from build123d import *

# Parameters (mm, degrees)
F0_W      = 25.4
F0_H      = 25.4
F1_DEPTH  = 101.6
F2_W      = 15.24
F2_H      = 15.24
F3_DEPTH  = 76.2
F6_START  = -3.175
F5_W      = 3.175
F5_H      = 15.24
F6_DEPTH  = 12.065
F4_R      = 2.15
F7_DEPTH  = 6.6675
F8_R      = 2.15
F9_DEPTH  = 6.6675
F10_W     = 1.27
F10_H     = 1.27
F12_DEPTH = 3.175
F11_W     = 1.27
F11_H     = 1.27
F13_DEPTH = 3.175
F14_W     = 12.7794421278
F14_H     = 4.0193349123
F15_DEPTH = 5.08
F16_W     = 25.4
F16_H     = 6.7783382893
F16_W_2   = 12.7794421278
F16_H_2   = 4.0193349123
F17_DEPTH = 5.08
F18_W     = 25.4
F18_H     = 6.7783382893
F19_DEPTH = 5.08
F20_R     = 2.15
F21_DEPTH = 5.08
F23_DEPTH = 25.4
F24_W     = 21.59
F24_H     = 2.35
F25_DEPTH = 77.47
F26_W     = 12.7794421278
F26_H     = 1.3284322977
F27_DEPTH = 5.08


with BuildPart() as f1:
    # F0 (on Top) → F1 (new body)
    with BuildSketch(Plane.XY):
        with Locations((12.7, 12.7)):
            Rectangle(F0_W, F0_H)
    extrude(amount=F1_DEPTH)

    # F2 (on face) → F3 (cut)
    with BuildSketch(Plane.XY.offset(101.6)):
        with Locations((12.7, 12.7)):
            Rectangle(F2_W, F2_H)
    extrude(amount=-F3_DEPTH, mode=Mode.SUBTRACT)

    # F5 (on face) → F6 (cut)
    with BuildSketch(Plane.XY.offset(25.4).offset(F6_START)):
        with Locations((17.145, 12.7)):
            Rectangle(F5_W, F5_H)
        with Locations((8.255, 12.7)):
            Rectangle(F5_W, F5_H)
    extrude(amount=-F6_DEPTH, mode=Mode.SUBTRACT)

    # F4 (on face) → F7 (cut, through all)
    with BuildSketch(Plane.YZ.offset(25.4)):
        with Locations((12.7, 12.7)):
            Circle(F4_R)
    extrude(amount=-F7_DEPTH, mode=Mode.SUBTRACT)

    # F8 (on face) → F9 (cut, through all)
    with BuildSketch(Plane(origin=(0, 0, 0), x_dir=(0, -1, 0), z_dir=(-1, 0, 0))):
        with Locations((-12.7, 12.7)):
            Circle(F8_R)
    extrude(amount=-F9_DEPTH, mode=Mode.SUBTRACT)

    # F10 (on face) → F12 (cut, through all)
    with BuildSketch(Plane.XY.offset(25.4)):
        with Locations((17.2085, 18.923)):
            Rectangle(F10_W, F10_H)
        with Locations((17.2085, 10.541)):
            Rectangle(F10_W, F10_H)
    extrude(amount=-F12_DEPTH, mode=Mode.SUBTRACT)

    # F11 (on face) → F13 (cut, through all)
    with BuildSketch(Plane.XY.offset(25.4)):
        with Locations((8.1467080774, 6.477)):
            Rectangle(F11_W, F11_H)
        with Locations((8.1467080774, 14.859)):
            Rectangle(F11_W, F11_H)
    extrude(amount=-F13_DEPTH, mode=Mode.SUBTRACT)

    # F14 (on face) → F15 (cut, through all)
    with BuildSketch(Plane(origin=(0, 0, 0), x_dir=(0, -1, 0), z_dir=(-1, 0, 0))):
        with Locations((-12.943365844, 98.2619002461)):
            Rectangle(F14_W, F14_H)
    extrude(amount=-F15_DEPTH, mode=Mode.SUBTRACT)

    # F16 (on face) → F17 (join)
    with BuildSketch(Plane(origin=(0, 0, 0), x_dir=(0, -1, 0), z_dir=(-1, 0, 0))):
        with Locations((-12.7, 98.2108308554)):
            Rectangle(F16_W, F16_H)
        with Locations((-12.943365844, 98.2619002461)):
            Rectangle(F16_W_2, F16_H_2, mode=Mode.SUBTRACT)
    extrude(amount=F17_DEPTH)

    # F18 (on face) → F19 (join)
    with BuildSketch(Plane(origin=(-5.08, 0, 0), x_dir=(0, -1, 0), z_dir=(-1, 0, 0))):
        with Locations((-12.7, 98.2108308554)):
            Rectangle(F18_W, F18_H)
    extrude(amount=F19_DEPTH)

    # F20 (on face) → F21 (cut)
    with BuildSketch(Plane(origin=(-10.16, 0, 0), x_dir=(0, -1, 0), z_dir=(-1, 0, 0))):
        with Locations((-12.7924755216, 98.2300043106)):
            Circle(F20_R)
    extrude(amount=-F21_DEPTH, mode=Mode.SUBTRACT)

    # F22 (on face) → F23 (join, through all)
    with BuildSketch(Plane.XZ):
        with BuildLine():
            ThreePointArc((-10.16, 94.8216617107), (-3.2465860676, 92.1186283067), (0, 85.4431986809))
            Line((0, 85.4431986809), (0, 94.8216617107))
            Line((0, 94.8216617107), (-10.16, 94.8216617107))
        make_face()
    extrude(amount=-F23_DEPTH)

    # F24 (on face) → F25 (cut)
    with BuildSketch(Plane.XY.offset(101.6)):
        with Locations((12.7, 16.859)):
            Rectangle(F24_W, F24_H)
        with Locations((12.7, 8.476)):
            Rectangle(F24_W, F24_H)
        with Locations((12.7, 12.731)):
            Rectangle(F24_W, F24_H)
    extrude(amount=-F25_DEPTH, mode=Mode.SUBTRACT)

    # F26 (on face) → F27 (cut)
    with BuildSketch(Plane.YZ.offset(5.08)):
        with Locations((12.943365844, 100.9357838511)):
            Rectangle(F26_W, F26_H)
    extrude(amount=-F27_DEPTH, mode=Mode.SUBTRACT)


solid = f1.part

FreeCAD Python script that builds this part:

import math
import FreeCAD as App
import Part
import Sketcher
Q = App.Units.Quantity

doc = App.newDocument("Part")
params = doc.addObject("Spreadsheet::Sheet", "Params")
for row, (alias, value) in enumerate([
    ("sketch1_width", "1 in"),
    ("pad1_length", "4 in"),
    ("sketch2_width", "0.6 in"),
    ("pocket1_length", "3 in"),
    ("sketch3_height", "0.6 in"),
    ("sketch3_width", "0.125 in"),
    ("pocket2_length", "0.475 in"),
    ("pocket3_length", "0.2625 in"),
    ("pocket4_length", "0.2625 in"),
    ("sketch6_width", "0.05 in"),
    ("pocket5_length", "0.125 in"),
    ("sketch7_width", "0.05 in"),
    ("pocket6_length", "0.125 in"),
    ("pocket7_length", "0.2 in"),
    ("sketch9_width", "1 in"),
    ("pad2_length", "0.2 in"),
    ("sketch10_width", "1 in"),
    ("pad3_length", "0.2 in"),
    ("pocket8_length", "0.2 in"),
    ("sketch12_width", "0.4 in"),
    ("pad4_length", "1 in"),
    ("sketch13_width", "0.85 in"),
    ("pocket9_length", "3.05 in"),
    ("pocket10_length", "0.2 in"),
], start=1):
    params.set(f"A{row}", alias)
    params.set(f"B{row}", "=" + value)
    params.setAlias(f"B{row}", alias)

body = doc.addObject("PartDesign::Body", "Body")

# Sketch on XY plane
sketch1 = body.newObject("Sketcher::SketchObject", "Sketch")
sketch1.AttachmentSupport = (doc.getObject("XY_Plane"), [""])
sketch1.MapMode = "FlatFace"
sketch1.addGeometry(Part.LineSegment(App.Vector(0, 25, 0), App.Vector(0, 0, 0)), False)
sketch1.addGeometry(Part.LineSegment(App.Vector(0, 0, 0), App.Vector(25, 0, 0)), False)
sketch1.addGeometry(Part.LineSegment(App.Vector(25, 0, 0), App.Vector(25, 25, 0)), False)
sketch1.addGeometry(Part.LineSegment(App.Vector(25, 25, 0), App.Vector(0, 25, 0)), False)
sketch1.addConstraint(Sketcher.Constraint("Coincident", 0, 2, 1, 1))
sketch1.addConstraint(Sketcher.Constraint("Coincident", 1, 2, 2, 1))
sketch1.addConstraint(Sketcher.Constraint("Coincident", 2, 2, 3, 1))
sketch1.addConstraint(Sketcher.Constraint("Coincident", 3, 2, 0, 1))
sketch1.addConstraint(Sketcher.Constraint("Vertical", 0))
sketch1.addConstraint(Sketcher.Constraint("Horizontal", 1))
sketch1.addConstraint(Sketcher.Constraint("Vertical", 2))
sketch1.addConstraint(Sketcher.Constraint("Horizontal", 3))
sketch1.addConstraint(Sketcher.Constraint("Coincident", 0, 2, -1, 1))
sketch1.addConstraint(Sketcher.Constraint("Equal", 3, 0))
sketch1.addConstraint(Sketcher.Constraint("DistanceX", 1, 1, 1, 2, Q("1 in")))
sketch1.setExpression("Constraints[10]", "Params.sketch1_width")
pad1 = body.newObject("PartDesign::Pad", "Pad")
pad1.Profile = sketch1
pad1.setExpression("Length", "Params.pad1_length")

# Sketch on XY plane
sketch2 = body.newObject("Sketcher::SketchObject", "Sketch001")
sketch2.AttachmentSupport = (doc.getObject("XY_Plane"), [""])
sketch2.MapMode = "FlatFace"
sketch2.AttachmentOffset = App.Placement(App.Vector(0, 0, 4 * 25.4), App.Rotation())
sketch2.addGeometry(Part.LineSegment(App.Vector(5, 20, 0), App.Vector(5, 5, 0)), False)
sketch2.addGeometry(Part.LineSegment(App.Vector(5, 5, 0), App.Vector(20, 5, 0)), False)
sketch2.addGeometry(Part.LineSegment(App.Vector(20, 5, 0), App.Vector(20, 20, 0)), False)
sketch2.addGeometry(Part.LineSegment(App.Vector(20, 20, 0), App.Vector(5, 20, 0)), False)
sketch2.addConstraint(Sketcher.Constraint("Coincident", 0, 2, 1, 1))
sketch2.addConstraint(Sketcher.Constraint("Coincident", 1, 2, 2, 1))
sketch2.addConstraint(Sketcher.Constraint("Coincident", 2, 2, 3, 1))
sketch2.addConstraint(Sketcher.Constraint("Coincident", 3, 2, 0, 1))
sketch2.addConstraint(Sketcher.Constraint("Vertical", 0))
sketch2.addConstraint(Sketcher.Constraint("Horizontal", 1))
sketch2.addConstraint(Sketcher.Constraint("Vertical", 2))
sketch2.addConstraint(Sketcher.Constraint("Horizontal", 3))
sketch2.addConstraint(Sketcher.Constraint("Equal", 3, 0))
sketch2.addConstraint(Sketcher.Constraint("DistanceX", 1, 1, 1, 2, Q("0.6 in")))
sketch2.addConstraint(Sketcher.Constraint("DistanceX", -1, 1, 0, 2, Q("0.2 in")))
sketch2.addConstraint(Sketcher.Constraint("DistanceY", -1, 1, 0, 2, Q("0.2 in")))
sketch2.setExpression("Constraints[9]", "Params.sketch2_width")
pocket1 = body.newObject("PartDesign::Pocket", "Pocket")
pocket1.Profile = sketch2
pocket1.setExpression("Length", "Params.pocket1_length")

# Sketch on XY plane
sketch3 = body.newObject("Sketcher::SketchObject", "Sketch002")
sketch3.AttachmentSupport = (doc.getObject("XY_Plane"), [""])
sketch3.MapMode = "FlatFace"
sketch3.AttachmentOffset = App.Placement(App.Vector(0, 0, 0.875 * 25.4), App.Rotation())
sketch3.addGeometry(Part.LineSegment(App.Vector(15.6, 20.3, 0), App.Vector(15.6, 5.1, 0)), False)
sketch3.addGeometry(Part.LineSegment(App.Vector(15.6, 5.1, 0), App.Vector(18.7, 5.1, 0)), False)
sketch3.addGeometry(Part.LineSegment(App.Vector(18.7, 5.1, 0), App.Vector(18.7, 20.3, 0)), False)
sketch3.addGeometry(Part.LineSegment(App.Vector(18.7, 20.3, 0), App.Vector(15.6, 20.3, 0)), False)
sketch3.addGeometry(Part.LineSegment(App.Vector(6.7, 20.3, 0), App.Vector(6.7, 5.1, 0)), False)
sketch3.addGeometry(Part.LineSegment(App.Vector(6.7, 5.1, 0), App.Vector(9.8, 5.1, 0)), False)
sketch3.addGeometry(Part.LineSegment(App.Vector(9.8, 5.1, 0), App.Vector(9.8, 20.3, 0)), False)
sketch3.addGeometry(Part.LineSegment(App.Vector(9.8, 20.3, 0), App.Vector(6.7, 20.3, 0)), False)
sketch3.addConstraint(Sketcher.Constraint("Coincident", 0, 2, 1, 1))
sketch3.addConstraint(Sketcher.Constraint("Coincident", 1, 2, 2, 1))
sketch3.addConstraint(Sketcher.Constraint("Coincident", 2, 2, 3, 1))
sketch3.addConstraint(Sketcher.Constraint("Coincident", 3, 2, 0, 1))
sketch3.addConstraint(Sketcher.Constraint("Coincident", 4, 2, 5, 1))
sketch3.addConstraint(Sketcher.Constraint("Coincident", 5, 2, 6, 1))
sketch3.addConstraint(Sketcher.Constraint("Coincident", 6, 2, 7, 1))
sketch3.addConstraint(Sketcher.Constraint("Coincident", 7, 2, 4, 1))
sketch3.addConstraint(Sketcher.Constraint("Vertical", 0))
sketch3.addConstraint(Sketcher.Constraint("Horizontal", 1))
sketch3.addConstraint(Sketcher.Constraint("Vertical", 2))
sketch3.addConstraint(Sketcher.Constraint("Horizontal", 3))
sketch3.addConstraint(Sketcher.Constraint("Vertical", 4))
sketch3.addConstraint(Sketcher.Constraint("Horizontal", 5))
sketch3.addConstraint(Sketcher.Constraint("Vertical", 6))
sketch3.addConstraint(Sketcher.Constraint("Horizontal", 7))
sketch3.addConstraint(Sketcher.Constraint("Horizontal", 1, 2, 4, 2))
sketch3.addConstraint(Sketcher.Constraint("Horizontal", 3, 2, 6, 2))
sketch3.addConstraint(Sketcher.Constraint("Equal", 3, 5))
sketch3.addConstraint(Sketcher.Constraint("DistanceY", 0, 2, 0, 1, Q("0.6 in")))
sketch3.addConstraint(Sketcher.Constraint("DistanceY", -1, 1, 0, 2, Q("0.2 in")))
sketch3.addConstraint(Sketcher.Constraint("DistanceX", 1, 1, 1, 2, Q("0.125 in")))
sketch3.addConstraint(Sketcher.Constraint("DistanceX", 4, 2, 0, 2, Q("0.35 in")))
sketch3.addConstraint(Sketcher.Constraint("DistanceX", -1, 1, 0, 2, Q("0.6125 in")))
sketch3.setExpression("Constraints[19]", "Params.sketch3_height")
sketch3.setExpression("Constraints[21]", "Params.sketch3_width")
pocket2 = body.newObject("PartDesign::Pocket", "Pocket001")
pocket2.Profile = sketch3
pocket2.setExpression("Length", "Params.pocket2_length")

# Sketch on YZ plane
sketch4 = body.newObject("Sketcher::SketchObject", "Sketch003")
sketch4.AttachmentSupport = (doc.getObject("YZ_Plane"), [""])
sketch4.MapMode = "FlatFace"
sketch4.AttachmentOffset = App.Placement(App.Vector(0, 0, 1 * 25.4), App.Rotation())
sketch4.addGeometry(Part.Circle(App.Vector(12.7, 12.7, 0), App.Vector(0, 0, 1), 2.1), False)
sketch4.addConstraint(Sketcher.Constraint("DistanceX", -1, 1, 0, 3, Q("0.5 in")))
sketch4.addConstraint(Sketcher.Constraint("DistanceY", -1, 1, 0, 3, Q("0.5 in")))
sketch4.addConstraint(Sketcher.Constraint("Diameter", 0, Q("4.3 mm")))
pocket3 = body.newObject("PartDesign::Pocket", "Pocket002")
pocket3.Profile = sketch4
pocket3.setExpression("Length", "Params.pocket3_length")

# Sketch on YZ plane
sketch5 = body.newObject("Sketcher::SketchObject", "Sketch004")
sketch5.AttachmentSupport = (doc.getObject("YZ_Plane"), [""])
sketch5.MapMode = "FlatFace"
sketch5.addGeometry(Part.Circle(App.Vector(12.7, 12.7, 0), App.Vector(0, 0, 1), 2.1), False)
sketch5.addConstraint(Sketcher.Constraint("DistanceX", -1, 1, 0, 3, Q("0.5 in")))
sketch5.addConstraint(Sketcher.Constraint("DistanceY", -1, 1, 0, 3, Q("0.5 in")))
sketch5.addConstraint(Sketcher.Constraint("Diameter", 0, Q("4.3 mm")))
pocket4 = body.newObject("PartDesign::Pocket", "Pocket003")
pocket4.Profile = sketch5
pocket4.setExpression("Length", "Params.pocket4_length")
pocket4.Reversed = True

# Sketch on XY plane
sketch6 = body.newObject("Sketcher::SketchObject", "Sketch005")
sketch6.AttachmentSupport = (doc.getObject("XY_Plane"), [""])
sketch6.MapMode = "FlatFace"
sketch6.AttachmentOffset = App.Placement(App.Vector(0, 0, 1 * 25.4), App.Rotation())
sketch6.addGeometry(Part.LineSegment(App.Vector(16.6, 19.6, 0), App.Vector(16.6, 18.3, 0)), False)
sketch6.addGeometry(Part.LineSegment(App.Vector(16.6, 18.3, 0), App.Vector(17.8, 18.3, 0)), False)
sketch6.addGeometry(Part.LineSegment(App.Vector(17.8, 18.3, 0), App.Vector(17.8, 19.6, 0)), False)
sketch6.addGeometry(Part.LineSegment(App.Vector(17.8, 19.6, 0), App.Vector(16.6, 19.6, 0)), False)
sketch6.addGeometry(Part.LineSegment(App.Vector(16.6, 11.2, 0), App.Vector(16.6, 9.9, 0)), False)
sketch6.addGeometry(Part.LineSegment(App.Vector(16.6, 9.9, 0), App.Vector(17.8, 9.9, 0)), False)
sketch6.addGeometry(Part.LineSegment(App.Vector(17.8, 9.9, 0), App.Vector(17.8, 11.2, 0)), False)
sketch6.addGeometry(Part.LineSegment(App.Vector(17.8, 11.2, 0), App.Vector(16.6, 11.2, 0)), False)
sketch6.addConstraint(Sketcher.Constraint("Coincident", 0, 2, 1, 1))
sketch6.addConstraint(Sketcher.Constraint("Coincident", 1, 2, 2, 1))
sketch6.addConstraint(Sketcher.Constraint("Coincident", 2, 2, 3, 1))
sketch6.addConstraint(Sketcher.Constraint("Coincident", 3, 2, 0, 1))
sketch6.addConstraint(Sketcher.Constraint("Coincident", 4, 2, 5, 1))
sketch6.addConstraint(Sketcher.Constraint("Coincident", 5, 2, 6, 1))
sketch6.addConstraint(Sketcher.Constraint("Coincident", 6, 2, 7, 1))
sketch6.addConstraint(Sketcher.Constraint("Coincident", 7, 2, 4, 1))
sketch6.addConstraint(Sketcher.Constraint("Vertical", 0))
sketch6.addConstraint(Sketcher.Constraint("Horizontal", 1))
sketch6.addConstraint(Sketcher.Constraint("Vertical", 2))
sketch6.addConstraint(Sketcher.Constraint("Horizontal", 3))
sketch6.addConstraint(Sketcher.Constraint("Vertical", 4))
sketch6.addConstraint(Sketcher.Constraint("Horizontal", 5))
sketch6.addConstraint(Sketcher.Constraint("Vertical", 6))
sketch6.addConstraint(Sketcher.Constraint("Horizontal", 7))
sketch6.addConstraint(Sketcher.Constraint("Vertical", 3, 2, 4, 2))
sketch6.addConstraint(Sketcher.Constraint("Vertical", 2, 2, 5, 2))
sketch6.addConstraint(Sketcher.Constraint("Equal", 7, 0))
sketch6.addConstraint(Sketcher.Constraint("Equal", 2, 4))
sketch6.addConstraint(Sketcher.Constraint("DistanceX", 1, 1, 1, 2, Q("0.05 in")))
sketch6.addConstraint(Sketcher.Constraint("DistanceY", -1, 1, 0, 2, Q("0.72 in")))
sketch6.addConstraint(Sketcher.Constraint("DistanceY", -1, 1, 4, 2, Q("0.39 in")))
sketch6.addConstraint(Sketcher.Constraint("DistanceX", -1, 1, 0, 2, Q("0.6525 in")))
sketch6.setExpression("Constraints[20]", "Params.sketch6_width")
pocket5 = body.newObject("PartDesign::Pocket", "Pocket004")
pocket5.Profile = sketch6
pocket5.setExpression("Length", "Params.pocket5_length")

# Sketch on XY plane
sketch7 = body.newObject("Sketcher::SketchObject", "Sketch006")
sketch7.AttachmentSupport = (doc.getObject("XY_Plane"), [""])
sketch7.MapMode = "FlatFace"
sketch7.AttachmentOffset = App.Placement(App.Vector(0, 0, 1 * 25.4), App.Rotation())
sketch7.addGeometry(Part.LineSegment(App.Vector(7.5, 7.1, 0), App.Vector(7.5, 5.8, 0)), False)
sketch7.addGeometry(Part.LineSegment(App.Vector(7.5, 5.8, 0), App.Vector(8.8, 5.8, 0)), False)
sketch7.addGeometry(Part.LineSegment(App.Vector(8.8, 5.8, 0), App.Vector(8.8, 7.1, 0)), False)
sketch7.addGeometry(Part.LineSegment(App.Vector(8.8, 7.1, 0), App.Vector(7.5, 7.1, 0)), False)
sketch7.addGeometry(Part.LineSegment(App.Vector(7.5, 15.5, 0), App.Vector(7.5, 14.2, 0)), False)
sketch7.addGeometry(Part.LineSegment(App.Vector(7.5, 14.2, 0), App.Vector(8.8, 14.2, 0)), False)
sketch7.addGeometry(Part.LineSegment(App.Vector(8.8, 14.2, 0), App.Vector(8.8, 15.5, 0)), False)
sketch7.addGeometry(Part.LineSegment(App.Vector(8.8, 15.5, 0), App.Vector(7.5, 15.5, 0)), False)
sketch7.addConstraint(Sketcher.Constraint("Coincident", 0, 2, 1, 1))
sketch7.addConstraint(Sketcher.Constraint("Coincident", 1, 2, 2, 1))
sketch7.addConstraint(Sketcher.Constraint("Coincident", 2, 2, 3, 1))
sketch7.addConstraint(Sketcher.Constraint("Coincident", 3, 2, 0, 1))
sketch7.addConstraint(Sketcher.Constraint("Coincident", 4, 2, 5, 1))
sketch7.addConstraint(Sketcher.Constraint("Coincident", 5, 2, 6, 1))
sketch7.addConstraint(Sketcher.Constraint("Coincident", 6, 2, 7, 1))
sketch7.addConstraint(Sketcher.Constraint("Coincident", 7, 2, 4, 1))
sketch7.addConstraint(Sketcher.Constraint("Vertical", 0))
sketch7.addConstraint(Sketcher.Constraint("Horizontal", 1))
sketch7.addConstraint(Sketcher.Constraint("Vertical", 2))
sketch7.addConstraint(Sketcher.Constraint("Horizontal", 3))
sketch7.addConstraint(Sketcher.Constraint("Vertical", 4))
sketch7.addConstraint(Sketcher.Constraint("Horizontal", 5))
sketch7.addConstraint(Sketcher.Constraint("Vertical", 6))
sketch7.addConstraint(Sketcher.Constraint("Horizontal", 7))
sketch7.addConstraint(Sketcher.Constraint("Vertical", 3, 2, 4, 2))
sketch7.addConstraint(Sketcher.Constraint("Vertical", 2, 2, 5, 2))
sketch7.addConstraint(Sketcher.Constraint("Equal", 7, 0))
sketch7.addConstraint(Sketcher.Constraint("Equal", 2, 4))
sketch7.addConstraint(Sketcher.Constraint("DistanceX", 1, 1, 1, 2, Q("0.05 in")))
sketch7.addConstraint(Sketcher.Constraint("DistanceY", -1, 1, 0, 2, Q("0.23 in")))
sketch7.addConstraint(Sketcher.Constraint("DistanceY", -1, 1, 4, 2, Q("0.56 in")))
sketch7.addConstraint(Sketcher.Constraint("DistanceX", -1, 1, 0, 2, Q("7.511708 mm")))
sketch7.setExpression("Constraints[20]", "Params.sketch7_width")
pocket6 = body.newObject("PartDesign::Pocket", "Pocket005")
pocket6.Profile = sketch7
pocket6.setExpression("Length", "Params.pocket6_length")

# Sketch on YZ plane
sketch8 = body.newObject("Sketcher::SketchObject", "Sketch007")
sketch8.AttachmentSupport = (doc.getObject("YZ_Plane"), [""])
sketch8.MapMode = "FlatFace"
sketch8.addGeometry(Part.LineSegment(App.Vector(19.3, 100.3, 0), App.Vector(19.3, 96.3, 0)), False)
sketch8.addGeometry(Part.LineSegment(App.Vector(19.3, 96.3, 0), App.Vector(6.6, 96.3, 0)), False)
sketch8.addGeometry(Part.LineSegment(App.Vector(6.6, 96.3, 0), App.Vector(6.6, 100.3, 0)), False)
sketch8.addGeometry(Part.LineSegment(App.Vector(6.6, 100.3, 0), App.Vector(19.3, 100.3, 0)), False)
sketch8.addConstraint(Sketcher.Constraint("Coincident", 0, 2, 1, 1))
sketch8.addConstraint(Sketcher.Constraint("Coincident", 1, 2, 2, 1))
sketch8.addConstraint(Sketcher.Constraint("Coincident", 2, 2, 3, 1))
sketch8.addConstraint(Sketcher.Constraint("Coincident", 3, 2, 0, 1))
sketch8.addConstraint(Sketcher.Constraint("Vertical", 0))
sketch8.addConstraint(Sketcher.Constraint("Horizontal", 1))
sketch8.addConstraint(Sketcher.Constraint("Vertical", 2))
sketch8.addConstraint(Sketcher.Constraint("Horizontal", 3))
sketch8.addConstraint(Sketcher.Constraint("DistanceX", 1, 2, 1, 1, Q("12.779442 mm")))
sketch8.addConstraint(Sketcher.Constraint("DistanceY", 0, 2, 0, 1, Q("4.019335 mm")))
sketch8.addConstraint(Sketcher.Constraint("DistanceX", -1, 1, 0, 2, Q("19.333087 mm")))
sketch8.addConstraint(Sketcher.Constraint("DistanceY", -1, 1, 0, 2, Q("96.252233 mm")))
pocket7 = body.newObject("PartDesign::Pocket", "Pocket006")
pocket7.Profile = sketch8
pocket7.setExpression("Length", "Params.pocket7_length")
pocket7.Reversed = True

# Sketch on YZ plane
sketch9 = body.newObject("Sketcher::SketchObject", "Sketch008")
sketch9.AttachmentSupport = (doc.getObject("YZ_Plane"), [""])
sketch9.MapMode = "FlatFace"
sketch9.addGeometry(Part.LineSegment(App.Vector(25.4, 101.6, 0), App.Vector(25.4, 94.8, 0)), False)
sketch9.addGeometry(Part.LineSegment(App.Vector(25.4, 94.8, 0), App.Vector(0, 94.8, 0)), False)
sketch9.addGeometry(Part.LineSegment(App.Vector(0, 94.8, 0), App.Vector(0, 101.6, 0)), False)
sketch9.addGeometry(Part.LineSegment(App.Vector(0, 101.6, 0), App.Vector(25.4, 101.6, 0)), False)
sketch9.addGeometry(Part.LineSegment(App.Vector(6.6, 96.3, 0), App.Vector(19.3, 96.3, 0)), False)
sketch9.addGeometry(Part.LineSegment(App.Vector(19.3, 96.3, 0), App.Vector(19.3, 100.3, 0)), False)
sketch9.addGeometry(Part.LineSegment(App.Vector(19.3, 100.3, 0), App.Vector(6.6, 100.3, 0)), False)
sketch9.addGeometry(Part.LineSegment(App.Vector(6.6, 100.3, 0), App.Vector(6.6, 96.3, 0)), False)
sketch9.addConstraint(Sketcher.Constraint("Coincident", 0, 2, 1, 1))
sketch9.addConstraint(Sketcher.Constraint("Coincident", 1, 2, 2, 1))
sketch9.addConstraint(Sketcher.Constraint("Coincident", 2, 2, 3, 1))
sketch9.addConstraint(Sketcher.Constraint("Coincident", 3, 2, 0, 1))
sketch9.addConstraint(Sketcher.Constraint("Coincident", 4, 2, 5, 1))
sketch9.addConstraint(Sketcher.Constraint("Coincident", 5, 2, 6, 1))
sketch9.addConstraint(Sketcher.Constraint("Coincident", 6, 2, 7, 1))
sketch9.addConstraint(Sketcher.Constraint("Coincident", 7, 2, 4, 1))
sketch9.addConstraint(Sketcher.Constraint("Vertical", 0))
sketch9.addConstraint(Sketcher.Constraint("Horizontal", 1))
sketch9.addConstraint(Sketcher.Constraint("Vertical", 2))
sketch9.addConstraint(Sketcher.Constraint("Horizontal", 3))
sketch9.addConstraint(Sketcher.Constraint("Horizontal", 4))
sketch9.addConstraint(Sketcher.Constraint("Vertical", 5))
sketch9.addConstraint(Sketcher.Constraint("Horizontal", 6))
sketch9.addConstraint(Sketcher.Constraint("Vertical", 7))
sketch9.addConstraint(Sketcher.Constraint("PointOnObject", 1, 2, -2))
sketch9.addConstraint(Sketcher.Constraint("DistanceX", 1, 2, 1, 1, Q("1 in")))
sketch9.addConstraint(Sketcher.Constraint("DistanceY", -1, 1, 2, 2, Q("4 in")))
sketch9.addConstraint(Sketcher.Constraint("DistanceY", 0, 2, 0, 1, Q("6.778338 mm")))
sketch9.addConstraint(Sketcher.Constraint("DistanceX", 4, 1, 4, 2, Q("12.779442 mm")))
sketch9.addConstraint(Sketcher.Constraint("DistanceY", 5, 1, 5, 2, Q("4.019335 mm")))
sketch9.addConstraint(Sketcher.Constraint("DistanceY", 0, 2, 4, 2, Q("1.430571 mm")))
sketch9.addConstraint(Sketcher.Constraint("DistanceX", -1, 1, 4, 2, Q("19.333087 mm")))
sketch9.setExpression("Constraints[17]", "Params.sketch9_width")
pad2 = body.newObject("PartDesign::Pad", "Pad001")
pad2.Profile = sketch9
pad2.setExpression("Length", "Params.pad2_length")
pad2.Reversed = True

# Sketch on YZ plane
sketch10 = body.newObject("Sketcher::SketchObject", "Sketch009")
sketch10.AttachmentSupport = (doc.getObject("YZ_Plane"), [""])
sketch10.MapMode = "FlatFace"
sketch10.AttachmentOffset = App.Placement(App.Vector(0, 0, -0.2 * 25.4), App.Rotation())
sketch10.addGeometry(Part.LineSegment(App.Vector(25, 102, 0), App.Vector(25, 95, 0)), False)
sketch10.addGeometry(Part.LineSegment(App.Vector(25, 95, 0), App.Vector(0, 95, 0)), False)
sketch10.addGeometry(Part.LineSegment(App.Vector(0, 95, 0), App.Vector(0, 102, 0)), False)
sketch10.addGeometry(Part.LineSegment(App.Vector(0, 102, 0), App.Vector(25, 102, 0)), False)
sketch10.addConstraint(Sketcher.Constraint("Coincident", 0, 2, 1, 1))
sketch10.addConstraint(Sketcher.Constraint("Coincident", 1, 2, 2, 1))
sketch10.addConstraint(Sketcher.Constraint("Coincident", 2, 2, 3, 1))
sketch10.addConstraint(Sketcher.Constraint("Coincident", 3, 2, 0, 1))
sketch10.addConstraint(Sketcher.Constraint("Vertical", 0))
sketch10.addConstraint(Sketcher.Constraint("Horizontal", 1))
sketch10.addConstraint(Sketcher.Constraint("Vertical", 2))
sketch10.addConstraint(Sketcher.Constraint("Horizontal", 3))
sketch10.addConstraint(Sketcher.Constraint("PointOnObject", 1, 2, -2))
sketch10.addConstraint(Sketcher.Constraint("DistanceX", 1, 2, 1, 1, Q("1 in")))
sketch10.addConstraint(Sketcher.Constraint("DistanceY", -1, 1, 2, 2, Q("4 in")))
sketch10.addConstraint(Sketcher.Constraint("DistanceY", 0, 2, 0, 1, Q("6.778338 mm")))
sketch10.setExpression("Constraints[9]", "Params.sketch10_width")
pad3 = body.newObject("PartDesign::Pad", "Pad002")
pad3.Profile = sketch10
pad3.setExpression("Length", "Params.pad3_length")
pad3.Reversed = True

# Sketch on YZ plane
sketch11 = body.newObject("Sketcher::SketchObject", "Sketch010")
sketch11.AttachmentSupport = (doc.getObject("YZ_Plane"), [""])
sketch11.MapMode = "FlatFace"
sketch11.AttachmentOffset = App.Placement(App.Vector(0, 0, -0.4 * 25.4), App.Rotation())
sketch11.addGeometry(Part.Circle(App.Vector(12.8, 98.2, 0), App.Vector(0, 0, 1), 2.1), False)
sketch11.addConstraint(Sketcher.Constraint("Diameter", 0, Q("4.3 mm")))
sketch11.addConstraint(Sketcher.Constraint("DistanceX", -1, 1, 0, 3, Q("12.792476 mm")))
sketch11.addConstraint(Sketcher.Constraint("DistanceY", -1, 1, 0, 3, Q("98.230004 mm")))
pocket8 = body.newObject("PartDesign::Pocket", "Pocket007")
pocket8.Profile = sketch11
pocket8.setExpression("Length", "Params.pocket8_length")
pocket8.Reversed = True

# Sketch on XZ plane
sketch12 = body.newObject("Sketcher::SketchObject", "Sketch011")
sketch12.AttachmentSupport = (doc.getObject("XZ_Plane"), [""])
sketch12.MapMode = "FlatFace"
sketch12.addGeometry(Part.ArcOfCircle(Part.Circle(App.Vector(-10, 85, 0), App.Vector(0, 0, 1), 10), math.radians(5), math.radians(90)), False)
sketch12.addGeometry(Part.LineSegment(App.Vector(0, 85, 0), App.Vector(0, 95, 0)), False)
sketch12.addGeometry(Part.LineSegment(App.Vector(0, 95, 0), App.Vector(-10, 95, 0)), False)
sketch12.addConstraint(Sketcher.Constraint("Coincident", 0, 1, 1, 1))
sketch12.addConstraint(Sketcher.Constraint("Coincident", 1, 2, 2, 1))
sketch12.addConstraint(Sketcher.Constraint("Tangent", 2, 2, 0, 2))
sketch12.addConstraint(Sketcher.Constraint("Vertical", 1))
sketch12.addConstraint(Sketcher.Constraint("Horizontal", 2))
sketch12.addConstraint(Sketcher.Constraint("PointOnObject", 0, 1, -2))
sketch12.addConstraint(Sketcher.Constraint("DistanceX", 2, 2, 2, 1, Q("0.4 in")))
sketch12.addConstraint(Sketcher.Constraint("Radius", 0, Q("10.192564 mm")))
sketch12.addConstraint(Sketcher.Constraint("DistanceY", -1, 1, 0, 1, Q("85.443199 mm")))
sketch12.setExpression("Constraints[6]", "Params.sketch12_width")
pad4 = body.newObject("PartDesign::Pad", "Pad003")
pad4.Profile = sketch12
pad4.setExpression("Length", "Params.pad4_length")
pad4.Reversed = True

# Sketch on XY plane
sketch13 = body.newObject("Sketcher::SketchObject", "Sketch012")
sketch13.AttachmentSupport = (doc.getObject("XY_Plane"), [""])
sketch13.MapMode = "FlatFace"
sketch13.AttachmentOffset = App.Placement(App.Vector(0, 0, 4 * 25.4), App.Rotation())
sketch13.addGeometry(Part.LineSegment(App.Vector(1.9, 18, 0), App.Vector(1.9, 15.7, 0)), False)
sketch13.addGeometry(Part.LineSegment(App.Vector(1.9, 15.7, 0), App.Vector(23.5, 15.7, 0)), False)
sketch13.addGeometry(Part.LineSegment(App.Vector(23.5, 15.7, 0), App.Vector(23.5, 18, 0)), False)
sketch13.addGeometry(Part.LineSegment(App.Vector(23.5, 18, 0), App.Vector(1.9, 18, 0)), False)
sketch13.addGeometry(Part.LineSegment(App.Vector(1.9, 9.7, 0), App.Vector(1.9, 7.3, 0)), False)
sketch13.addGeometry(Part.LineSegment(App.Vector(1.9, 7.3, 0), App.Vector(23.5, 7.3, 0)), False)
sketch13.addGeometry(Part.LineSegment(App.Vector(23.5, 7.3, 0), App.Vector(23.5, 9.7, 0)), False)
sketch13.addGeometry(Part.LineSegment(App.Vector(23.5, 9.7, 0), App.Vector(1.9, 9.7, 0)), False)
sketch13.addGeometry(Part.LineSegment(App.Vector(1.9, 13.9, 0), App.Vector(1.9, 11.6, 0)), False)
sketch13.addGeometry(Part.LineSegment(App.Vector(1.9, 11.6, 0), App.Vector(23.5, 11.6, 0)), False)
sketch13.addGeometry(Part.LineSegment(App.Vector(23.5, 11.6, 0), App.Vector(23.5, 13.9, 0)), False)
sketch13.addGeometry(Part.LineSegment(App.Vector(23.5, 13.9, 0), App.Vector(1.9, 13.9, 0)), False)
sketch13.addConstraint(Sketcher.Constraint("Coincident", 0, 2, 1, 1))
sketch13.addConstraint(Sketcher.Constraint("Coincident", 1, 2, 2, 1))
sketch13.addConstraint(Sketcher.Constraint("Coincident", 2, 2, 3, 1))
sketch13.addConstraint(Sketcher.Constraint("Coincident", 3, 2, 0, 1))
sketch13.addConstraint(Sketcher.Constraint("Coincident", 4, 2, 5, 1))
sketch13.addConstraint(Sketcher.Constraint("Coincident", 5, 2, 6, 1))
sketch13.addConstraint(Sketcher.Constraint("Coincident", 6, 2, 7, 1))
sketch13.addConstraint(Sketcher.Constraint("Coincident", 7, 2, 4, 1))
sketch13.addConstraint(Sketcher.Constraint("Coincident", 8, 2, 9, 1))
sketch13.addConstraint(Sketcher.Constraint("Coincident", 9, 2, 10, 1))
sketch13.addConstraint(Sketcher.Constraint("Coincident", 10, 2, 11, 1))
sketch13.addConstraint(Sketcher.Constraint("Coincident", 11, 2, 8, 1))
sketch13.addConstraint(Sketcher.Constraint("Vertical", 0))
sketch13.addConstraint(Sketcher.Constraint("Horizontal", 1))
sketch13.addConstraint(Sketcher.Constraint("Vertical", 2))
sketch13.addConstraint(Sketcher.Constraint("Horizontal", 3))
sketch13.addConstraint(Sketcher.Constraint("Vertical", 4))
sketch13.addConstraint(Sketcher.Constraint("Horizontal", 5))
sketch13.addConstraint(Sketcher.Constraint("Vertical", 6))
sketch13.addConstraint(Sketcher.Constraint("Horizontal", 7))
sketch13.addConstraint(Sketcher.Constraint("Vertical", 8))
sketch13.addConstraint(Sketcher.Constraint("Horizontal", 9))
sketch13.addConstraint(Sketcher.Constraint("Vertical", 10))
sketch13.addConstraint(Sketcher.Constraint("Horizontal", 11))
sketch13.addConstraint(Sketcher.Constraint("Vertical", 3, 2, 4, 2))
sketch13.addConstraint(Sketcher.Constraint("Vertical", 2, 2, 5, 2))
sketch13.addConstraint(Sketcher.Constraint("Vertical", 7, 2, 8, 2))
sketch13.addConstraint(Sketcher.Constraint("Vertical", 6, 2, 9, 2))
sketch13.addConstraint(Sketcher.Constraint("Equal", 2, 4))
sketch13.addConstraint(Sketcher.Constraint("Equal", 6, 8))
sketch13.addConstraint(Sketcher.Constraint("DistanceX", 1, 1, 1, 2, Q("0.85 in")))
sketch13.addConstraint(Sketcher.Constraint("DistanceY", -1, 1, 2, 2, Q("0.71 in")))
sketch13.addConstraint(Sketcher.Constraint("DistanceY", 10, 2, 1, 2, Q("0.07 in")))
sketch13.addConstraint(Sketcher.Constraint("DistanceX", -1, 1, 0, 2, Q("0.075 in")))
sketch13.addConstraint(Sketcher.Constraint("DistanceY", 7, 2, 8, 2, Q("0.075 in")))
sketch13.addConstraint(Sketcher.Constraint("DistanceY", 0, 2, 0, 1, Q("2.35 mm")))
sketch13.setExpression("Constraints[30]", "Params.sketch13_width")
pocket9 = body.newObject("PartDesign::Pocket", "Pocket008")
pocket9.Profile = sketch13
pocket9.setExpression("Length", "Params.pocket9_length")

# Sketch on YZ plane
sketch14 = body.newObject("Sketcher::SketchObject", "Sketch013")
sketch14.AttachmentSupport = (doc.getObject("YZ_Plane"), [""])
sketch14.MapMode = "FlatFace"
sketch14.AttachmentOffset = App.Placement(App.Vector(0, 0, 0.2 * 25.4), App.Rotation())
sketch14.addGeometry(Part.LineSegment(App.Vector(6.6, 101.6, 0), App.Vector(6.6, 100.3, 0)), False)
sketch14.addGeometry(Part.LineSegment(App.Vector(6.6, 100.3, 0), App.Vector(19.3, 100.3, 0)), False)
sketch14.addGeometry(Part.LineSegment(App.Vector(19.3, 100.3, 0), App.Vector(19.3, 101.6, 0)), False)
sketch14.addGeometry(Part.LineSegment(App.Vector(19.3, 101.6, 0), App.Vector(6.6, 101.6, 0)), False)
sketch14.addConstraint(Sketcher.Constraint("Coincident", 0, 2, 1, 1))
sketch14.addConstraint(Sketcher.Constraint("Coincident", 1, 2, 2, 1))
sketch14.addConstraint(Sketcher.Constraint("Coincident", 2, 2, 3, 1))
sketch14.addConstraint(Sketcher.Constraint("Coincident", 3, 2, 0, 1))
sketch14.addConstraint(Sketcher.Constraint("Vertical", 0))
sketch14.addConstraint(Sketcher.Constraint("Horizontal", 1))
sketch14.addConstraint(Sketcher.Constraint("Vertical", 2))
sketch14.addConstraint(Sketcher.Constraint("Horizontal", 3))
sketch14.addConstraint(Sketcher.Constraint("DistanceY", -1, 1, 2, 2, Q("4 in")))
sketch14.addConstraint(Sketcher.Constraint("DistanceX", 1, 1, 1, 2, Q("12.779442 mm")))
sketch14.addConstraint(Sketcher.Constraint("DistanceY", 0, 2, 0, 1, Q("1.328432 mm")))
sketch14.addConstraint(Sketcher.Constraint("DistanceX", -1, 1, 0, 2, Q("6.553645 mm")))
pocket10 = body.newObject("PartDesign::Pocket", "Pocket009")
pocket10.Profile = sketch14
pocket10.setExpression("Length", "Params.pocket10_length")

doc.recompute()
